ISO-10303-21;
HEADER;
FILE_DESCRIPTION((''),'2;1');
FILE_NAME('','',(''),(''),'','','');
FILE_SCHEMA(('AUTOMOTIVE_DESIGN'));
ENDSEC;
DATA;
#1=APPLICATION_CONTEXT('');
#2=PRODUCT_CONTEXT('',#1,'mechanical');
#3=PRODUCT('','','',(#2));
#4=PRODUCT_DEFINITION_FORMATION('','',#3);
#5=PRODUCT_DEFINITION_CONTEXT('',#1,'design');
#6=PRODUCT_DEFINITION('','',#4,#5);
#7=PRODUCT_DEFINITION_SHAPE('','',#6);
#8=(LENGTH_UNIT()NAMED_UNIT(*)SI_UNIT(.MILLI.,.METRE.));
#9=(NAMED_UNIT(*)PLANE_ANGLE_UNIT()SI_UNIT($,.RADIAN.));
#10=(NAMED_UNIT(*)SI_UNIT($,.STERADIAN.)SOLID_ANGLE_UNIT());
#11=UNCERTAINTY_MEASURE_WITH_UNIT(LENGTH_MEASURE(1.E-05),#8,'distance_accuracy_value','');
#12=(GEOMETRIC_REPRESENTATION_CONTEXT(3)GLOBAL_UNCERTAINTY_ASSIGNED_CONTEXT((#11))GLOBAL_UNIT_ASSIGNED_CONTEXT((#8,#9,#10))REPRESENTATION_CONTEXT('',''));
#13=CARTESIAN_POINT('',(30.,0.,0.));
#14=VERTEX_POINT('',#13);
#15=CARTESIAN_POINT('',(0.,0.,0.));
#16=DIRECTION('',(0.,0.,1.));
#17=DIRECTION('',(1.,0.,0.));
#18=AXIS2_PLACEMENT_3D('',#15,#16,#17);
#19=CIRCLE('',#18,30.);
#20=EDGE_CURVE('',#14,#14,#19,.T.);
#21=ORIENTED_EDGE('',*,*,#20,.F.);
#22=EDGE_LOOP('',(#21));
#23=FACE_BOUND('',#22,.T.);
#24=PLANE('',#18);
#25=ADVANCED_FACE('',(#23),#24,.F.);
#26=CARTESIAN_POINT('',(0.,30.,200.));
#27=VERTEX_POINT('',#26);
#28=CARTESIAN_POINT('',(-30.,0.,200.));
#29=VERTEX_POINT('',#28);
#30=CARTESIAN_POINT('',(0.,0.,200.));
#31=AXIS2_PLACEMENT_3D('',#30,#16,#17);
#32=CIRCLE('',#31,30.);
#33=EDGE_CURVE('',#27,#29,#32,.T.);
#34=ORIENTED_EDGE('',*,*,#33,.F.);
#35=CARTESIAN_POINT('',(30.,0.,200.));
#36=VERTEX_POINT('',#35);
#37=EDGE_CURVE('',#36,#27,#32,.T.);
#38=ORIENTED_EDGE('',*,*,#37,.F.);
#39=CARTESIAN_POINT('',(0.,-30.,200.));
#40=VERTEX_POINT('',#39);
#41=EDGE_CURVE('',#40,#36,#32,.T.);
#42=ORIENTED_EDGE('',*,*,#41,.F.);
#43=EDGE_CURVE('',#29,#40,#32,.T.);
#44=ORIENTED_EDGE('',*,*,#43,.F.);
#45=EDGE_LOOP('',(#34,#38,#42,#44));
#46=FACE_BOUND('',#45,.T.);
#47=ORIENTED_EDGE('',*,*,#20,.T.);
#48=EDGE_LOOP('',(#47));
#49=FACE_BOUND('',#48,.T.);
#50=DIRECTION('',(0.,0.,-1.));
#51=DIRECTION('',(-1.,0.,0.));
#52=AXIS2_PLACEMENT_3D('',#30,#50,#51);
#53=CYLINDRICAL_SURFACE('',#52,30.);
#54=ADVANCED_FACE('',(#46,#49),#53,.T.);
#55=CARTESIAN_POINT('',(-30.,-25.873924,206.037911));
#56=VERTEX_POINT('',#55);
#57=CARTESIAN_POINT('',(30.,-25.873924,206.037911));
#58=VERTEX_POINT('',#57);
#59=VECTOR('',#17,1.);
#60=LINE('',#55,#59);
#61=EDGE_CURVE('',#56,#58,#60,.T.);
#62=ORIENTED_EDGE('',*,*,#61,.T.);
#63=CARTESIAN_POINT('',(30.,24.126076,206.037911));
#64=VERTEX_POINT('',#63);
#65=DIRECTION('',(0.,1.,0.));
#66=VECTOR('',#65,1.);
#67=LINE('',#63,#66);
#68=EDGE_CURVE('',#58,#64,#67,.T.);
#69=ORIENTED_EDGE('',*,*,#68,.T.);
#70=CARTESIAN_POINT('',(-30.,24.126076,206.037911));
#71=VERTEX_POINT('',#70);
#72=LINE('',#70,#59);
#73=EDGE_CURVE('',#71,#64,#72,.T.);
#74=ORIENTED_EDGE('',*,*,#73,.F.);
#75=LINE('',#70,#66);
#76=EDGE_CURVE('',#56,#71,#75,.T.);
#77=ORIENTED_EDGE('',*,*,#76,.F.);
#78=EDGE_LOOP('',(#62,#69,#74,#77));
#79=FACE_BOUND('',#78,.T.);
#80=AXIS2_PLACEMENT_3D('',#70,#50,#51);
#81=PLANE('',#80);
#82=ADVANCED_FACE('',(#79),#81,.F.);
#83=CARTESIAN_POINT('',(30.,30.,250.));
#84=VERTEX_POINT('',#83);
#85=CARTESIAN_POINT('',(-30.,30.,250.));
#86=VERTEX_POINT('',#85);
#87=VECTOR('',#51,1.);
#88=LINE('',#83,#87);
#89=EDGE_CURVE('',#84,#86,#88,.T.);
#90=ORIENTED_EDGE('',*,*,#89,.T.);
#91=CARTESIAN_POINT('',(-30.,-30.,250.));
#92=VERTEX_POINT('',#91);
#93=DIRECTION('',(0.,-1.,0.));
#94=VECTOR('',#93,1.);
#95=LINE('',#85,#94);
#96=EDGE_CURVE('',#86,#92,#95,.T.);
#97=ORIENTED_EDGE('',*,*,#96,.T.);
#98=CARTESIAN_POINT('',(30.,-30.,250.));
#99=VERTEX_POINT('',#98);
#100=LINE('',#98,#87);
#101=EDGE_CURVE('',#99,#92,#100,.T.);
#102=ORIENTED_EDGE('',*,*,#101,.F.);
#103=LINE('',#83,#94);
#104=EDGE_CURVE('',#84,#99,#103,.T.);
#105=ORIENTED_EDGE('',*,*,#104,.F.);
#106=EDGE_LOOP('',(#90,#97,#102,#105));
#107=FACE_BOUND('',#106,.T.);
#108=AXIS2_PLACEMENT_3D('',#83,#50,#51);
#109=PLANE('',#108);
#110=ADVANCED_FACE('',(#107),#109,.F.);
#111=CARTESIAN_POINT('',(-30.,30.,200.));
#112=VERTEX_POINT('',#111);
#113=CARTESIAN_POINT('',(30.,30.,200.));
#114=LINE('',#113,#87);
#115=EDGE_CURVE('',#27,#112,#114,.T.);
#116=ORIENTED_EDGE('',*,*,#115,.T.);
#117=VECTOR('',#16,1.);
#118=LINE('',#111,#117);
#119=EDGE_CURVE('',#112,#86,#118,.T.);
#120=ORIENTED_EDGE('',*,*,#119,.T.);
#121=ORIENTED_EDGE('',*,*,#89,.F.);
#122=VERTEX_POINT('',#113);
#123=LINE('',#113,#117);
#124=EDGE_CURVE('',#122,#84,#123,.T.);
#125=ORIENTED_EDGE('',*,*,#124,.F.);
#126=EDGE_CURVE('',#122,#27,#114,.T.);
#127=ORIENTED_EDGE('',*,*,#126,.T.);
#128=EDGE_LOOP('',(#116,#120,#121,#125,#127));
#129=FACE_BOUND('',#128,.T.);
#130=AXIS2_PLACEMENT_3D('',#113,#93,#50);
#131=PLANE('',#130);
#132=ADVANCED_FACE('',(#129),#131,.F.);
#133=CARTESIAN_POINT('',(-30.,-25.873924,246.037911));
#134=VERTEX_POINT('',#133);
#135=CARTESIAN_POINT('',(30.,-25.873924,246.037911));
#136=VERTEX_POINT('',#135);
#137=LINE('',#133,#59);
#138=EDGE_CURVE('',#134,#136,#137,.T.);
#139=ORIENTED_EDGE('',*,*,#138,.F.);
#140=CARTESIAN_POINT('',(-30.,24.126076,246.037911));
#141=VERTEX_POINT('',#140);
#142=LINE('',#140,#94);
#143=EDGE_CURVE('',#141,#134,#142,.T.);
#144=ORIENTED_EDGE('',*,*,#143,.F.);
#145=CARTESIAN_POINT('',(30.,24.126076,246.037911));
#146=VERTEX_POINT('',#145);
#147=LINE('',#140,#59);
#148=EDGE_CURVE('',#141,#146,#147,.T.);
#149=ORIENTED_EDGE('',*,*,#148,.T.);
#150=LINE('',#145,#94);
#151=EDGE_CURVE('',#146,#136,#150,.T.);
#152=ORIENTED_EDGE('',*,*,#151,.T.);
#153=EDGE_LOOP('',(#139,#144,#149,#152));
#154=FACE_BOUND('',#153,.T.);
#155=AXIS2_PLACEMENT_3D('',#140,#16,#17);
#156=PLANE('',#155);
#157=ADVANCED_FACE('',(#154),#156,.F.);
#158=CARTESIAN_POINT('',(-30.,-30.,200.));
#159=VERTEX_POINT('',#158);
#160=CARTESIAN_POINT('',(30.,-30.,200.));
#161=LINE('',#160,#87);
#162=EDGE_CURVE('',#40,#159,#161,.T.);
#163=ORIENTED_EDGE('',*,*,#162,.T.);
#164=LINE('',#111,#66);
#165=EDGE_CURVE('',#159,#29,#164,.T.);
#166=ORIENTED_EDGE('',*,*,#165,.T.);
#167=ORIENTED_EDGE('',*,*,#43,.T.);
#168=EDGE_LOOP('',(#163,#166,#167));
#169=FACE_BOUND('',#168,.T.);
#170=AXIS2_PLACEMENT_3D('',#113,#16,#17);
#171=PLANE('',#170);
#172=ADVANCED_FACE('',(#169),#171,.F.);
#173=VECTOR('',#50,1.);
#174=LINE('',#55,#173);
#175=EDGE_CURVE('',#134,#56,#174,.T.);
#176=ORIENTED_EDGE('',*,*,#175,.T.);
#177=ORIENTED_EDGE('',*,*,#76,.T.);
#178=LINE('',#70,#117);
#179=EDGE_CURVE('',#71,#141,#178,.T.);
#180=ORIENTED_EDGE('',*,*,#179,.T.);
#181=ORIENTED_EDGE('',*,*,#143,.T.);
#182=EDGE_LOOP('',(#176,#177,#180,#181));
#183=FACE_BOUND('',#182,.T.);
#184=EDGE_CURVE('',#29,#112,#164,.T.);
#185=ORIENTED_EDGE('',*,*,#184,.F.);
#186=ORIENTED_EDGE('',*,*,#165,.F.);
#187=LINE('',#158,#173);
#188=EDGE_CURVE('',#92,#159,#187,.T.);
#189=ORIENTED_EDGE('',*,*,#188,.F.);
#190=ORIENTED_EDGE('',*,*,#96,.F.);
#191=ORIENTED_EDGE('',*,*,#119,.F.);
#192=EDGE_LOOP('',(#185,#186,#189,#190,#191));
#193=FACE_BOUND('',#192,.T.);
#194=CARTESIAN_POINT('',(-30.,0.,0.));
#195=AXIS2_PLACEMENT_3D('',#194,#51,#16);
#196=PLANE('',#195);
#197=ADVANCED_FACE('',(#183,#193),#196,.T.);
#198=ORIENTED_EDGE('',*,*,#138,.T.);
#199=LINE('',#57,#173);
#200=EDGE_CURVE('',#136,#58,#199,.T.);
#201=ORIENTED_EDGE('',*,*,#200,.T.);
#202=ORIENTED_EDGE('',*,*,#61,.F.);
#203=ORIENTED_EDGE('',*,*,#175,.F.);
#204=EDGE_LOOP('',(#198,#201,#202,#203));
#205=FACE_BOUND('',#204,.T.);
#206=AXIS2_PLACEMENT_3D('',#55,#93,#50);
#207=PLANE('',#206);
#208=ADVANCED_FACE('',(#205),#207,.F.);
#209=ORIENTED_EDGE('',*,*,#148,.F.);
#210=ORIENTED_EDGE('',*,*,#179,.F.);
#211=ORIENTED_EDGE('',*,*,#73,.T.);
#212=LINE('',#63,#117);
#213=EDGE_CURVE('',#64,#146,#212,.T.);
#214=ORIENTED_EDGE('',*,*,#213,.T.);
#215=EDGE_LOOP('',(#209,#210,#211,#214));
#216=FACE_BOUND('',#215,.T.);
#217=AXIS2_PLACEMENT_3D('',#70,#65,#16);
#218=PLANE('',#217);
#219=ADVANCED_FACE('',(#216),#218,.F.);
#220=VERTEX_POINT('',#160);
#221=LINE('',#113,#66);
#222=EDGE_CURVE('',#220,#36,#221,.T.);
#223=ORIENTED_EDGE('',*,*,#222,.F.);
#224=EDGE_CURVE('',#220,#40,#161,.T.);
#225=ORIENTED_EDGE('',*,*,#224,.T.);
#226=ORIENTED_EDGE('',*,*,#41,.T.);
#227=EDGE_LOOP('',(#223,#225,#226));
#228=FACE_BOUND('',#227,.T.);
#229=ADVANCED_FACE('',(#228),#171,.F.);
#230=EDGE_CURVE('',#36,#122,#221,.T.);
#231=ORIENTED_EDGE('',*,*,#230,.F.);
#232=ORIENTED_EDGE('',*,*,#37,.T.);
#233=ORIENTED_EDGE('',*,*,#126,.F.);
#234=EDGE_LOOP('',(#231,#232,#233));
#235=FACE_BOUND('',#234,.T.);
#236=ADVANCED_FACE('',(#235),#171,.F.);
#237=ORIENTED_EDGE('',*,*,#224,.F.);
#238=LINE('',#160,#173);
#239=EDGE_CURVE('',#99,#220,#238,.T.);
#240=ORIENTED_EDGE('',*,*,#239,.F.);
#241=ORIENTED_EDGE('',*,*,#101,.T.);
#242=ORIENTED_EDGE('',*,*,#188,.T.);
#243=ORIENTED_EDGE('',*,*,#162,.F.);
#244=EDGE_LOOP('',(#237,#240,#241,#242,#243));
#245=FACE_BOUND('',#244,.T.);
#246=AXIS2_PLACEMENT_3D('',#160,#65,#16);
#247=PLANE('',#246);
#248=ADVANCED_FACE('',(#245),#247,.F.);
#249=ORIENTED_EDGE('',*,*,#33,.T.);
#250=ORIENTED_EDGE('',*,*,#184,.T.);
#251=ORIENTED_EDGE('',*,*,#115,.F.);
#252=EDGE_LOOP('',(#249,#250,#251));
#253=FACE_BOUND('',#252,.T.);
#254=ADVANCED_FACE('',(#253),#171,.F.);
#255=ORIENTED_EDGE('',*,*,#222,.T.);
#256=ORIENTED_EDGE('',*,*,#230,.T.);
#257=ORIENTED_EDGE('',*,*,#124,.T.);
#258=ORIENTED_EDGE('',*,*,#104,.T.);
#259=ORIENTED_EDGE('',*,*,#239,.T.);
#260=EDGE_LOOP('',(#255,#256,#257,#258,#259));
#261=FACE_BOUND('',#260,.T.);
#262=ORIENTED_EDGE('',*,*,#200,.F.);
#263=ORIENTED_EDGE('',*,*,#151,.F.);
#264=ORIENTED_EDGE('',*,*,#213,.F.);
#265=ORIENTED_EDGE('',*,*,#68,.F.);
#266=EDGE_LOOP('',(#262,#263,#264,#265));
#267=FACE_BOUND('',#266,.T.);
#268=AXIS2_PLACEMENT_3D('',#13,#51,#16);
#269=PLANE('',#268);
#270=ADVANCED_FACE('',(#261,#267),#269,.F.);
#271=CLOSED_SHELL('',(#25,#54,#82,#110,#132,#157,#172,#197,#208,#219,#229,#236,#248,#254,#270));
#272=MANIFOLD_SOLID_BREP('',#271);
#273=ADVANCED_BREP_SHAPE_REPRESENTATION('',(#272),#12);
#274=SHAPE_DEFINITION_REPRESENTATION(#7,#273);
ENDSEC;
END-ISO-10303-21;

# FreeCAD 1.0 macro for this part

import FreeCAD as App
import Part
import Sketcher
from FreeCAD import Vector


def add_polygon(sketch, points):
    """Adds a closed chain of lines whose ends are joined by coincident constraints."""
    first, n = sketch.GeometryCount, len(points)
    for a, b in zip(points, points[1:] + points[:1]):
        sketch.addGeometry(Part.LineSegment(App.Vector(*a, 0), App.Vector(*b, 0)), False)
    for i in range(n):
        sketch.addConstraint(Sketcher.Constraint("Coincident", first + i, 2, first + (i + 1) % n, 1))

doc = App.newDocument("Part")
params = doc.addObject("Spreadsheet::Sheet", "Params")
for row, (alias, value) in enumerate([
    ("sketch1_diameter", "60 mm"),
    ("pad1_length", "200 mm"),
    ("sketch2_width", "60 mm"),
    ("sketch2_height", "50 mm"),
    ("pad2_length", "60 mm"),
    ("sketch3_width", "50 mm"),
    ("sketch3_height", "40 mm"),
], start=1):
    params.set(f"A{row}", alias)
    params.set(f"B{row}", "=" + value)
    params.setAlias(f"B{row}", alias)

body = doc.addObject("PartDesign::Body", "Body")

# Sketch on XY plane
sketch1 = body.newObject("Sketcher::SketchObject", "Sketch")
sketch1.AttachmentSupport = (doc.getObject("XY_Plane"), [""])
sketch1.MapMode = "FlatFace"
sketch1.addGeometry(Part.Circle(Vector(0, 0, 0), Vector(0, 0, 1), 30), False)
sketch1.addConstraint([
    Sketcher.Constraint("Coincident", 0, 3, -1, 1),
    Sketcher.Constraint("Diameter", 0, 60.0),
])
sketch1.setExpression("Constraints[1]", "Params.sketch1_diameter")
pad1 = body.newObject("PartDesign::Pad", "Pad")
pad1.Profile = sketch1
pad1.setExpression("Length", "Params.pad1_length")

# Sketch on YZ plane
sketch2 = body.newObject("Sketcher::SketchObject", "Sketch001")
sketch2.AttachmentSupport = (doc.getObject("YZ_Plane"), [""])
sketch2.MapMode = "FlatFace"
add_polygon(sketch2, [(30, 250), (-30, 250), (-30, 200), (30, 200)])  # lines 0-3
sketch2.addConstraint([
    Sketcher.Constraint("Horizontal", 0),
    Sketcher.Constraint("Vertical", 1),
    Sketcher.Constraint("Horizontal", 2),
    Sketcher.Constraint("Vertical", 3),
    Sketcher.Constraint("DistanceX", 0, 2, 0, 1, 60.0),
    Sketcher.Constraint("DistanceY", 1, 2, 1, 1, 50.0),
    Sketcher.Constraint("DistanceX", 0, 2, -1, 1, 30.0),
    Sketcher.Constraint("DistanceY", -1, 1, 0, 2, 250.0),
])
sketch2.setExpression("Constraints[8]", "Params.sketch2_width")
sketch2.setExpression("Constraints[9]", "Params.sketch2_height")
pad2 = body.newObject("PartDesign::Pad", "Pad001")
pad2.Profile = sketch2
pad2.setExpression("Length", "Params.pad2_length")
pad2.Midplane = True

# Sketch on YZ plane
sketch3 = body.newObject("Sketcher::SketchObject", "Sketch002")
sketch3.AttachmentSupport = (doc.getObject("YZ_Plane"), [""])
sketch3.MapMode = "FlatFace"
sketch3.AttachmentOffset = App.Placement(Vector(0, 0, 30), App.Rotation())
add_polygon(sketch3, [(24.126076, 246.037911), (-25.873924, 246.037911), (-25.873924, 206.037911), (24.126076, 206.037911)])  # lines 0-3
sketch3.addConstraint([
    Sketcher.Constraint("Horizontal", 0),
    Sketcher.Constraint("Vertical", 1),
    Sketcher.Constraint("Horizontal", 2),
    Sketcher.Constraint("Vertical", 3),
    Sketcher.Constraint("DistanceX", 0, 2, 0, 1, 50.0),
    Sketcher.Constraint("DistanceY", 1, 2, 1, 1, 40.0),
    Sketcher.Constraint("DistanceY", -1, 1, 0, 2, 246.037911),
    Sketcher.Constraint("DistanceX", 0, 2, -1, 1, 25.873924),
])
sketch3.setExpression("Constraints[8]", "Params.sketch3_width")
sketch3.setExpression("Constraints[9]", "Params.sketch3_height")
pocket1 = body.newObject("PartDesign::Pocket", "Pocket")
pocket1.Profile = sketch3
pocket1.Type = "ThroughAll"

doc.recompute()
